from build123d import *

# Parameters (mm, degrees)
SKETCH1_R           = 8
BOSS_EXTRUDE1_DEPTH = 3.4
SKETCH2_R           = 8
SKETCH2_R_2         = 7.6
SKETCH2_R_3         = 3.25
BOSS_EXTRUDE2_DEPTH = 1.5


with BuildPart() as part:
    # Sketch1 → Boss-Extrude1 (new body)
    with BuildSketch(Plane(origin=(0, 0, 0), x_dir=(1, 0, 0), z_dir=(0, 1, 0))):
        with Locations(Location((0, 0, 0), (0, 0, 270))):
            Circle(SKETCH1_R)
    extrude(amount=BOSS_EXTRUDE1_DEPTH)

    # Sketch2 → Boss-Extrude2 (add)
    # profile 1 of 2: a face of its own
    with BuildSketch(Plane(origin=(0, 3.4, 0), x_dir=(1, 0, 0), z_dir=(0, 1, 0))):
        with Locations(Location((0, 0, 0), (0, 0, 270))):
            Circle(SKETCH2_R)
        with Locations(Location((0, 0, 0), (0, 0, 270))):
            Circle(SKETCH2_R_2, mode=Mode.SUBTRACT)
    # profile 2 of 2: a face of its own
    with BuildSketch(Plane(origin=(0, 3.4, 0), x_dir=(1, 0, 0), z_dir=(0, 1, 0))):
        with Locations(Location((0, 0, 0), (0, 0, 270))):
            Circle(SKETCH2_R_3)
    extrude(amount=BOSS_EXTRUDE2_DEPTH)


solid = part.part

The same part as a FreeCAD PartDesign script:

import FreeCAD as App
import Part
import Sketcher

V = App.Vector

doc = App.newDocument("Part")
params = doc.addObject("Spreadsheet::Sheet", "Params")
for row, (alias, value) in enumerate([
    ("sketch1_diameter", "16 mm"),
    ("pad1_length", "3.4 mm"),
    ("sketch2_diameter", "16 mm"),
    ("sketch2_diameter2", "15.2 mm"),
    ("sketch2_diameter3", "6.5 mm"),
    ("pad2_length", "1.5 mm"),
], start=1):
    params.set(f"A{row}", alias)
    params.set(f"B{row}", "=" + value)
    params.setAlias(f"B{row}", alias)

body = doc.addObject("PartDesign::Body", "Body")

# Sketch on XZ plane
sketch1 = body.newObject("Sketcher::SketchObject", "Sketch")
sketch1.AttachmentSupport = (doc.getObject("XZ_Plane"), [""])
sketch1.MapMode = "FlatFace"
sketch1.addGeometry(Part.Circle(V(0, 0, 0), V(0, 0, 1), 8), False)
sketch1.addConstraint([
    Sketcher.Constraint("Coincident", 0, 3, -1, 1),
    Sketcher.Constraint("Diameter", 0, 16.0),
])
sketch1.setExpression("Constraints[1]", "Params.sketch1_diameter")
pad1 = body.newObject("PartDesign::Pad", "Pad")
pad1.Profile = sketch1
pad1.setExpression("Length", "Params.pad1_length")
pad1.Reversed = True

# Sketch on XZ plane
sketch2 = body.newObject("Sketcher::SketchObject", "Sketch001")
sketch2.AttachmentSupport = (doc.getObject("XZ_Plane"), [""])
sketch2.MapMode = "FlatFace"
sketch2.AttachmentOffset = App.Placement(V(0, 0, -3.4), App.Rotation())
sketch2.addGeometry([
    Part.Circle(V(0, 0, 0), V(0, 0, 1), 8),
    Part.Circle(V(0, 0, 0), V(0, 0, 1), 7.6),
    Part.Circle(V(0, 0, 0), V(0, 0, 1), 3.2),
], False)
sketch2.addConstraint([
    Sketcher.Constraint("Coincident", 0, 3, -1, 1),
    Sketcher.Constraint("Coincident", 1, 3, -1, 1),
    Sketcher.Constraint("Coincident", 2, 3, -1, 1),
    Sketcher.Constraint("Diameter", 0, 16.0),
    Sketcher.Constraint("Diameter", 1, 15.2),
    Sketcher.Constraint("Diameter", 2, 6.5),
])
sketch2.setExpression("Constraints[3]", "Params.sketch2_diameter")
sketch2.setExpression("Constraints[4]", "Params.sketch2_diameter2")
sketch2.setExpression("Constraints[5]", "Params.sketch2_diameter3")
pad2 = body.newObject("PartDesign::Pad", "Pad001")
pad2.Profile = sketch2
pad2.setExpression("Length", "Params.pad2_length")
pad2.Reversed = True

doc.recompute()
